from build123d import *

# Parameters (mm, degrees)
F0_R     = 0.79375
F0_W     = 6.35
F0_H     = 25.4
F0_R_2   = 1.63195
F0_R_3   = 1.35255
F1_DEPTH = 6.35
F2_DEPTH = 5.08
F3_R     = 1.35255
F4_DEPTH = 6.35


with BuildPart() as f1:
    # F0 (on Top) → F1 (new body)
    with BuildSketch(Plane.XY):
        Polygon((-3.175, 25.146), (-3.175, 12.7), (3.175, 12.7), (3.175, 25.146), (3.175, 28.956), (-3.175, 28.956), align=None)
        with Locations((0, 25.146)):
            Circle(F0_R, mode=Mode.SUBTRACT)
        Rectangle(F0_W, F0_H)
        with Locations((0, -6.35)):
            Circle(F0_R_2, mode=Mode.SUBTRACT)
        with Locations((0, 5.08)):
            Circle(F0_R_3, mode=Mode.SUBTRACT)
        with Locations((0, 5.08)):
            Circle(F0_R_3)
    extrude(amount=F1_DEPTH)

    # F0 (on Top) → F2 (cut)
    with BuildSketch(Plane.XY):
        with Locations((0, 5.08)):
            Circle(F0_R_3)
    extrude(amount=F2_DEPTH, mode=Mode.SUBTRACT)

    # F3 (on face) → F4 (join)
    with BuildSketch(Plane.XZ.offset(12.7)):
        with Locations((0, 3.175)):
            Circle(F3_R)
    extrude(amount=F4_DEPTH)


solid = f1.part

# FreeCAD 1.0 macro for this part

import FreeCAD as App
import Part
import Sketcher
from FreeCAD import Vector
Q = App.Units.Quantity


def add_polygon(sketch, points):
    """Adds a closed chain of lines whose ends are joined by coincident constraints."""
    first, n = sketch.GeometryCount, len(points)
    for a, b in zip(points, points[1:] + points[:1]):
        sketch.addGeometry(Part.LineSegment(App.Vector(*a, 0), App.Vector(*b, 0)), False)
    for i in range(n):
        sketch.addConstraint(Sketcher.Constraint("Coincident", first + i, 2, first + (i + 1) % n, 1))

doc = App.newDocument("Part")
body = doc.addObject("PartDesign::Body", "Body")

sketch1 = body.newObject("Sketcher::SketchObject", "Sketch")
sketch1.AttachmentSupport = (doc.getObject("XY_Plane"), [""])
sketch1.MapMode = "FlatFace"
add_polygon(sketch1, [(-3.175, 28.956), (-3.175, -12.7), (3.175, -12.7), (3.175, 28.956)])
sketch1.addGeometry(Part.Circle(Vector(0, -6.35, 0), Vector(0, 0, 1), 1.63195), False)
sketch1.addGeometry(Part.Circle(Vector(0, 25.146, 0), Vector(0, 0, 1), 0.79375), False)
sketch1.addConstraint([
    Sketcher.Constraint("Vertical", 0),
    Sketcher.Constraint("Horizontal", 1),
    Sketcher.Constraint("Vertical", 2),
    Sketcher.Constraint("Horizontal", 3),
    Sketcher.Constraint("PointOnObject", 4, 3, -2),
    Sketcher.Constraint("PointOnObject", 5, 3, -2),
    Sketcher.Constraint("Diameter", 5, Q("0.0625 in")),
    Sketcher.Constraint("Diameter", 4, Q("0.1285 in")),
    Sketcher.Constraint("DistanceX", 1, 1, 1, 2, Q("0.25 in")),
    Sketcher.Constraint("DistanceY", 0, 2, 0, 1, Q("1.64 in")),
    Sketcher.Constraint("DistanceY", 0, 2, -1, 1, Q("0.5 in")),
    Sketcher.Constraint("DistanceY", 4, 3, -1, 1, Q("0.25 in")),
    Sketcher.Constraint("DistanceY", -1, 1, 5, 3, Q("0.99 in")),
    Sketcher.Constraint("DistanceX", 0, 2, -1, 1, Q("0.125 in")),
])
pad1 = body.newObject("PartDesign::Pad", "Pad")
pad1.Profile = sketch1
pad1.Length = Q("0.25 in")

sketch2 = body.newObject("Sketcher::SketchObject", "Sketch001")
sketch2.AttachmentSupport = (doc.getObject("XY_Plane"), [""])
sketch2.MapMode = "FlatFace"
sketch2.addGeometry(Part.Circle(Vector(0, 5.08, 0), Vector(0, 0, 1), 1.35255), False)
sketch2.addConstraint([
    Sketcher.Constraint("PointOnObject", 0, 3, -2),
    Sketcher.Constraint("Diameter", 0, Q("0.1065 in")),
    Sketcher.Constraint("DistanceY", -1, 1, 0, 3, Q("0.2 in")),
])
pocket1 = body.newObject("PartDesign::Pocket", "Pocket")
pocket1.Profile = sketch2
pocket1.Length = Q("0.2 in")
pocket1.Reversed = True

sketch3 = body.newObject("Sketcher::SketchObject", "Sketch002")
sketch3.AttachmentSupport = (doc.getObject("XZ_Plane"), [""])
sketch3.MapMode = "FlatFace"
sketch3.AttachmentOffset = App.Placement(Vector(0, 0, 0.5 * 25.4), App.Rotation())
sketch3.addGeometry(Part.Circle(Vector(0, 3.175, 0), Vector(0, 0, 1), 1.35255), False)
sketch3.addConstraint([
    Sketcher.Constraint("PointOnObject", 0, 3, -2),
    Sketcher.Constraint("Diameter", 0, Q("0.1065 in")),
    Sketcher.Constraint("DistanceY", -1, 1, 0, 3, Q("0.125 in")),
])
pad2 = body.newObject("PartDesign::Pad", "Pad001")
pad2.Profile = sketch3
pad2.Length = Q("0.25 in")

doc.recompute()
